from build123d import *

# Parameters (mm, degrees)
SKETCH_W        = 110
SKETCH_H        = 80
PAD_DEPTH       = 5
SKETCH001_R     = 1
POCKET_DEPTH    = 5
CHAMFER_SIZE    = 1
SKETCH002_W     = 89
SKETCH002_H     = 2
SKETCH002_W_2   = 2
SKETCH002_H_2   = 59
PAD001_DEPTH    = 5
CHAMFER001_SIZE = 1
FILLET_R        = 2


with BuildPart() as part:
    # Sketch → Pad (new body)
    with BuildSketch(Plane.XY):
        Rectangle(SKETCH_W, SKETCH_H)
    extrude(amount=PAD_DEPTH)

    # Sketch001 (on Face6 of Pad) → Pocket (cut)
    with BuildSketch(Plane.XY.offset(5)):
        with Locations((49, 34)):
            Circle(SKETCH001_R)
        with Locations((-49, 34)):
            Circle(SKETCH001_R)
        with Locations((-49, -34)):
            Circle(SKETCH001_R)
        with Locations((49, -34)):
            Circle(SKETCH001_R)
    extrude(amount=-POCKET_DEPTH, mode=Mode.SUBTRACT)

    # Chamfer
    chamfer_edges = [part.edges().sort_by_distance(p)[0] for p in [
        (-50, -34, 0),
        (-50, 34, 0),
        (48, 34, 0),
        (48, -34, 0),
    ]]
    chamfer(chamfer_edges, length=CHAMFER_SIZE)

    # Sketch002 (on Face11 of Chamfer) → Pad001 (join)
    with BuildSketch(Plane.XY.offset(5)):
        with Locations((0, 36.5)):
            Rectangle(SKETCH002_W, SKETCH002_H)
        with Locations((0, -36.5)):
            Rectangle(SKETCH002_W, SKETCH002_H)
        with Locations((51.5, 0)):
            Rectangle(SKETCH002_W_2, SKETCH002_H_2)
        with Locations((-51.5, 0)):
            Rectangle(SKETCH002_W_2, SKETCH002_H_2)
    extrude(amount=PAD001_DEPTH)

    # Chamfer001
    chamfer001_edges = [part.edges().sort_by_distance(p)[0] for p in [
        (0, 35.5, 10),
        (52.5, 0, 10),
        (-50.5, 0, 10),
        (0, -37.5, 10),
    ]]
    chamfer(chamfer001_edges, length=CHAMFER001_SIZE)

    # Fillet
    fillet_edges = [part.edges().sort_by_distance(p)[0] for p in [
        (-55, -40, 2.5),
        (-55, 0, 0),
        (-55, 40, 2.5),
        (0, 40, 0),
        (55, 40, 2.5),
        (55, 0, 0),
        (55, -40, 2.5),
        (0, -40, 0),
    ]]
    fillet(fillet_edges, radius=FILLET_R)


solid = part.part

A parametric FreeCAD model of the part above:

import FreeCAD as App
import Part
import Sketcher
from FreeCAD import Vector


def edges_at(feature, points):
    """Names of the edges that pass closest to the given points."""
    edges = feature.Shape.Edges
    near = lambda p: min(range(len(edges)), key=lambda i: edges[i].distToShape(Part.Vertex(*p))[0])
    return sorted({f"Edge{near(p) + 1}" for p in points})


def add_polygon(sketch, points):
    """Adds a closed chain of lines whose ends are joined by coincident constraints."""
    first, n = sketch.GeometryCount, len(points)
    for a, b in zip(points, points[1:] + points[:1]):
        sketch.addGeometry(Part.LineSegment(App.Vector(*a, 0), App.Vector(*b, 0)), False)
    for i in range(n):
        sketch.addConstraint(Sketcher.Constraint("Coincident", first + i, 2, first + (i + 1) % n, 1))

doc = App.newDocument("Part")
body = doc.addObject("PartDesign::Body", "Body")

# Sketch on XY plane
sketch1 = body.newObject("Sketcher::SketchObject", "Sketch")
sketch1.AttachmentSupport = (doc.getObject("XY_Plane"), [""])
sketch1.MapMode = "FlatFace"
add_polygon(sketch1, [(-55, 40), (-55, -40), (55, -40), (55, 40)])  # lines 0-3
sketch1.addConstraint([
    Sketcher.Constraint("Vertical", 0),
    Sketcher.Constraint("Horizontal", 1),
    Sketcher.Constraint("Vertical", 2),
    Sketcher.Constraint("Horizontal", 3),
    Sketcher.Constraint("Symmetric", 0, 2, 2, 2, -1, 1),
    Sketcher.Constraint("DistanceX", 1, 1, 1, 2, 110.0),
    Sketcher.Constraint("DistanceY", 0, 2, 0, 1, 80.0),
])
pad1 = body.newObject("PartDesign::Pad", "Pad")
pad1.Profile = sketch1
pad1.Length = 5

# Sketch on XY plane
sketch2 = body.newObject("Sketcher::SketchObject", "Sketch001")
sketch2.AttachmentSupport = (doc.getObject("XY_Plane"), [""])
sketch2.MapMode = "FlatFace"
sketch2.AttachmentOffset = App.Placement(Vector(0, 0, 5), App.Rotation())
sketch2.addGeometry([
    Part.Circle(Vector(49, 34, 0), Vector(0, 0, 1), 1),
    Part.Circle(Vector(-49, 34, 0), Vector(0, 0, 1), 1),
    Part.Circle(Vector(-49, -34, 0), Vector(0, 0, 1), 1),
    Part.Circle(Vector(49, -34, 0), Vector(0, 0, 1), 1),
], False)
sketch2.addConstraint([
    Sketcher.Constraint("Equal", 0, 1),
    Sketcher.Constraint("Equal", 1, 2),
    Sketcher.Constraint("Equal", 2, 3),
    Sketcher.Constraint("Symmetric", 0, 3, 2, 3, -1, 1),
    Sketcher.Constraint("Symmetric", 1, 3, 3, 3, -1, 1),
    Sketcher.Constraint("Symmetric", 0, 3, 1, 3, -2),
    Sketcher.Constraint("Diameter", 0, 2.0),
    Sketcher.Constraint("DistanceX", -1, 1, 0, 3, 49.0),
    Sketcher.Constraint("DistanceY", -1, 1, 0, 3, 34.0),
])
pocket1 = body.newObject("PartDesign::Pocket", "Pocket")
pocket1.Profile = sketch2
pocket1.Length = 5
doc.recompute()

chamfer = body.newObject("PartDesign::Chamfer", "Chamfer")
chamfer.Base = (pocket1, edges_at(pocket1, [
    (-50, -34, 0),
    (-50, 34, 0),
    (48, 34, 0),
    (48, -34, 0),
]))
chamfer.Size = 1

# Sketch on XY plane
sketch3 = body.newObject("Sketcher::SketchObject", "Sketch002")
sketch3.AttachmentSupport = (doc.getObject("XY_Plane"), [""])
sketch3.MapMode = "FlatFace"
sketch3.AttachmentOffset = App.Placement(Vector(0, 0, 5), App.Rotation())
add_polygon(sketch3, [(-44.5, 37.5), (-44.5, 35.5), (44.5, 35.5), (44.5, 37.5)])  # lines 0-3
add_polygon(sketch3, [(-44.5, -35.5), (-44.5, -37.5), (44.5, -37.5), (44.5, -35.5)])  # lines 4-7
add_polygon(sketch3, [(50.5, 29.5), (50.5, -29.5), (52.5, -29.5), (52.5, 29.5)])  # lines 8-11
add_polygon(sketch3, [(-52.5, 29.5), (-52.5, -29.5), (-50.5, -29.5), (-50.5, 29.5)])  # lines 12-15
sketch3.addConstraint([
    Sketcher.Constraint("Vertical", 0),
    Sketcher.Constraint("Horizontal", 1),
    Sketcher.Constraint("Vertical", 2),
    Sketcher.Constraint("Horizontal", 3),
    Sketcher.Constraint("Vertical", 4),
    Sketcher.Constraint("Horizontal", 5),
    Sketcher.Constraint("Vertical", 6),
    Sketcher.Constraint("Horizontal", 7),
    Sketcher.Constraint("Vertical", 8),
    Sketcher.Constraint("Horizontal", 9),
    Sketcher.Constraint("Vertical", 10),
    Sketcher.Constraint("Horizontal", 11),
    Sketcher.Constraint("Vertical", 12),
    Sketcher.Constraint("Horizontal", 13),
    Sketcher.Constraint("Vertical", 14),
    Sketcher.Constraint("Horizontal", 15),
    Sketcher.Constraint("Symmetric", 2, 2, 4, 2, -1, 1),
    Sketcher.Constraint("Symmetric", 0, 2, 6, 2, -1, 1),
    Sketcher.Constraint("Symmetric", 10, 2, 12, 2, -1, 1),
    Sketcher.Constraint("Symmetric", 8, 2, 14, 2, -1, 1),
    Sketcher.Constraint("Horizontal", 9, 2, 12, 2),
    Sketcher.Constraint("Vertical", 3, 2, 4, 2),
    Sketcher.Constraint("Equal", 15, 0),
    Sketcher.Constraint("DistanceX", 1, 1, 1, 2, 89.0),
    Sketcher.Constraint("DistanceX", 9, 1, 9, 2, 2.0),
    Sketcher.Constraint("DistanceY", 8, 2, 8, 1, 59.0),
    Sketcher.Constraint("DistanceY", 4, 2, 0, 2, 73.0),
    Sketcher.Constraint("DistanceX", 6, 2, 8, 2, 6.0),
])
pad2 = body.newObject("PartDesign::Pad", "Pad001")
pad2.Profile = sketch3
pad2.Length = 5
doc.recompute()

chamfer2 = body.newObject("PartDesign::Chamfer", "Chamfer001")
chamfer2.Base = (pad2, edges_at(pad2, [
    (0, 35.5, 10),
    (52.5, 0, 10),
    (-50.5, 0, 10),
    (0, -37.5, 10),
]))
chamfer2.Size = 1
doc.recompute()

fillet = body.newObject("PartDesign::Fillet", "Fillet")
fillet.Base = (chamfer2, edges_at(chamfer2, [
    (-55, -40, 2.5),
    (-55, 0, 0),
    (-55, 40, 2.5),
    (0, 40, 0),
    (55, 40, 2.5),
    (55, 0, 0),
    (55, -40, 2.5),
    (0, -40, 0),
]))
fillet.Radius = 2

doc.recompute()
